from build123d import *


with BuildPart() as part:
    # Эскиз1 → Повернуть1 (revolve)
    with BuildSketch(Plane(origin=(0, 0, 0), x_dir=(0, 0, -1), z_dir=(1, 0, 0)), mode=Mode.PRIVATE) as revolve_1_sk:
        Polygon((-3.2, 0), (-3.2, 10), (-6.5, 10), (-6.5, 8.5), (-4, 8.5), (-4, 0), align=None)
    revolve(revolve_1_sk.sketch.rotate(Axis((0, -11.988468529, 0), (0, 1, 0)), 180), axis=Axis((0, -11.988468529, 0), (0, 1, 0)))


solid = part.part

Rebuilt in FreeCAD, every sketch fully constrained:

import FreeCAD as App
import Part
import Sketcher
Q = App.Units.Quantity


def add_polygon(sketch, points):
    """Adds a closed chain of lines whose ends are joined by coincident constraints."""
    first, n = sketch.GeometryCount, len(points)
    for a, b in zip(points, points[1:] + points[:1]):
        sketch.addGeometry(Part.LineSegment(App.Vector(*a, 0), App.Vector(*b, 0)), False)
    for i in range(n):
        sketch.addConstraint(Sketcher.Constraint("Coincident", first + i, 2, first + (i + 1) % n, 1))

doc = App.newDocument("Part")
params = doc.addObject("Spreadsheet::Sheet", "Params")
for row, (alias, value) in enumerate([
    ("sketch1_width", "10 mm"),
    ("sketch1_width2", "1.5 mm"),
    ("sketch1_height", "3.3 mm"),
    ("sketch1_height2", "2.5 mm"),
    ("revolution_angle", "360 deg"),
], start=1):
    params.set(f"A{row}", alias)
    params.set(f"B{row}", "=" + value)
    params.setAlias(f"B{row}", alias)

body = doc.addObject("PartDesign::Body", "Body")

sketch1 = doc.addObject("Sketcher::SketchObject", "Sketch")
body.addObject(sketch1)
sketch1.AttachmentSupport = (doc.YZ_Plane, [""])
sketch1.MapMode = "FlatFace"
add_polygon(sketch1, [(0, 3.2), (10, 3.2), (10, 6.5), (8.5, 6.5), (8.5, 4), (0, 4)])
sketch1.addConstraint([
    Sketcher.Constraint("Horizontal", 0),
    Sketcher.Constraint("Vertical", 1),
    Sketcher.Constraint("Horizontal", 2),
    Sketcher.Constraint("Vertical", 3),
    Sketcher.Constraint("Horizontal", 4),
    Sketcher.Constraint("Vertical", 5),
    Sketcher.Constraint("PointOnObject", 4, 2, -2),
    Sketcher.Constraint("DistanceX", 0, 1, 0, 2, Q("10 mm")),
    Sketcher.Constraint("DistanceX", 2, 2, 2, 1, Q("1.5 mm")),
    Sketcher.Constraint("DistanceY", 1, 1, 1, 2, Q("3.3 mm")),
    Sketcher.Constraint("DistanceY", 3, 2, 3, 1, Q("2.5 mm")),
    Sketcher.Constraint("DistanceY", -1, 1, 3, 2, Q("4 mm")),
])
sketch1.setExpression("Constraints[13]", "Params.sketch1_width")
sketch1.setExpression("Constraints[14]", "Params.sketch1_width2")
sketch1.setExpression("Constraints[15]", "Params.sketch1_height")
sketch1.setExpression("Constraints[16]", "Params.sketch1_height2")
revolution = doc.addObject("PartDesign::Revolution", "Revolution")
body.addObject(revolution)
revolution.Profile = sketch1
revolution.ReferenceAxis = (sketch1, ["H_Axis"])
revolution.setExpression("Angle", "Params.revolution_angle")

doc.recompute()
